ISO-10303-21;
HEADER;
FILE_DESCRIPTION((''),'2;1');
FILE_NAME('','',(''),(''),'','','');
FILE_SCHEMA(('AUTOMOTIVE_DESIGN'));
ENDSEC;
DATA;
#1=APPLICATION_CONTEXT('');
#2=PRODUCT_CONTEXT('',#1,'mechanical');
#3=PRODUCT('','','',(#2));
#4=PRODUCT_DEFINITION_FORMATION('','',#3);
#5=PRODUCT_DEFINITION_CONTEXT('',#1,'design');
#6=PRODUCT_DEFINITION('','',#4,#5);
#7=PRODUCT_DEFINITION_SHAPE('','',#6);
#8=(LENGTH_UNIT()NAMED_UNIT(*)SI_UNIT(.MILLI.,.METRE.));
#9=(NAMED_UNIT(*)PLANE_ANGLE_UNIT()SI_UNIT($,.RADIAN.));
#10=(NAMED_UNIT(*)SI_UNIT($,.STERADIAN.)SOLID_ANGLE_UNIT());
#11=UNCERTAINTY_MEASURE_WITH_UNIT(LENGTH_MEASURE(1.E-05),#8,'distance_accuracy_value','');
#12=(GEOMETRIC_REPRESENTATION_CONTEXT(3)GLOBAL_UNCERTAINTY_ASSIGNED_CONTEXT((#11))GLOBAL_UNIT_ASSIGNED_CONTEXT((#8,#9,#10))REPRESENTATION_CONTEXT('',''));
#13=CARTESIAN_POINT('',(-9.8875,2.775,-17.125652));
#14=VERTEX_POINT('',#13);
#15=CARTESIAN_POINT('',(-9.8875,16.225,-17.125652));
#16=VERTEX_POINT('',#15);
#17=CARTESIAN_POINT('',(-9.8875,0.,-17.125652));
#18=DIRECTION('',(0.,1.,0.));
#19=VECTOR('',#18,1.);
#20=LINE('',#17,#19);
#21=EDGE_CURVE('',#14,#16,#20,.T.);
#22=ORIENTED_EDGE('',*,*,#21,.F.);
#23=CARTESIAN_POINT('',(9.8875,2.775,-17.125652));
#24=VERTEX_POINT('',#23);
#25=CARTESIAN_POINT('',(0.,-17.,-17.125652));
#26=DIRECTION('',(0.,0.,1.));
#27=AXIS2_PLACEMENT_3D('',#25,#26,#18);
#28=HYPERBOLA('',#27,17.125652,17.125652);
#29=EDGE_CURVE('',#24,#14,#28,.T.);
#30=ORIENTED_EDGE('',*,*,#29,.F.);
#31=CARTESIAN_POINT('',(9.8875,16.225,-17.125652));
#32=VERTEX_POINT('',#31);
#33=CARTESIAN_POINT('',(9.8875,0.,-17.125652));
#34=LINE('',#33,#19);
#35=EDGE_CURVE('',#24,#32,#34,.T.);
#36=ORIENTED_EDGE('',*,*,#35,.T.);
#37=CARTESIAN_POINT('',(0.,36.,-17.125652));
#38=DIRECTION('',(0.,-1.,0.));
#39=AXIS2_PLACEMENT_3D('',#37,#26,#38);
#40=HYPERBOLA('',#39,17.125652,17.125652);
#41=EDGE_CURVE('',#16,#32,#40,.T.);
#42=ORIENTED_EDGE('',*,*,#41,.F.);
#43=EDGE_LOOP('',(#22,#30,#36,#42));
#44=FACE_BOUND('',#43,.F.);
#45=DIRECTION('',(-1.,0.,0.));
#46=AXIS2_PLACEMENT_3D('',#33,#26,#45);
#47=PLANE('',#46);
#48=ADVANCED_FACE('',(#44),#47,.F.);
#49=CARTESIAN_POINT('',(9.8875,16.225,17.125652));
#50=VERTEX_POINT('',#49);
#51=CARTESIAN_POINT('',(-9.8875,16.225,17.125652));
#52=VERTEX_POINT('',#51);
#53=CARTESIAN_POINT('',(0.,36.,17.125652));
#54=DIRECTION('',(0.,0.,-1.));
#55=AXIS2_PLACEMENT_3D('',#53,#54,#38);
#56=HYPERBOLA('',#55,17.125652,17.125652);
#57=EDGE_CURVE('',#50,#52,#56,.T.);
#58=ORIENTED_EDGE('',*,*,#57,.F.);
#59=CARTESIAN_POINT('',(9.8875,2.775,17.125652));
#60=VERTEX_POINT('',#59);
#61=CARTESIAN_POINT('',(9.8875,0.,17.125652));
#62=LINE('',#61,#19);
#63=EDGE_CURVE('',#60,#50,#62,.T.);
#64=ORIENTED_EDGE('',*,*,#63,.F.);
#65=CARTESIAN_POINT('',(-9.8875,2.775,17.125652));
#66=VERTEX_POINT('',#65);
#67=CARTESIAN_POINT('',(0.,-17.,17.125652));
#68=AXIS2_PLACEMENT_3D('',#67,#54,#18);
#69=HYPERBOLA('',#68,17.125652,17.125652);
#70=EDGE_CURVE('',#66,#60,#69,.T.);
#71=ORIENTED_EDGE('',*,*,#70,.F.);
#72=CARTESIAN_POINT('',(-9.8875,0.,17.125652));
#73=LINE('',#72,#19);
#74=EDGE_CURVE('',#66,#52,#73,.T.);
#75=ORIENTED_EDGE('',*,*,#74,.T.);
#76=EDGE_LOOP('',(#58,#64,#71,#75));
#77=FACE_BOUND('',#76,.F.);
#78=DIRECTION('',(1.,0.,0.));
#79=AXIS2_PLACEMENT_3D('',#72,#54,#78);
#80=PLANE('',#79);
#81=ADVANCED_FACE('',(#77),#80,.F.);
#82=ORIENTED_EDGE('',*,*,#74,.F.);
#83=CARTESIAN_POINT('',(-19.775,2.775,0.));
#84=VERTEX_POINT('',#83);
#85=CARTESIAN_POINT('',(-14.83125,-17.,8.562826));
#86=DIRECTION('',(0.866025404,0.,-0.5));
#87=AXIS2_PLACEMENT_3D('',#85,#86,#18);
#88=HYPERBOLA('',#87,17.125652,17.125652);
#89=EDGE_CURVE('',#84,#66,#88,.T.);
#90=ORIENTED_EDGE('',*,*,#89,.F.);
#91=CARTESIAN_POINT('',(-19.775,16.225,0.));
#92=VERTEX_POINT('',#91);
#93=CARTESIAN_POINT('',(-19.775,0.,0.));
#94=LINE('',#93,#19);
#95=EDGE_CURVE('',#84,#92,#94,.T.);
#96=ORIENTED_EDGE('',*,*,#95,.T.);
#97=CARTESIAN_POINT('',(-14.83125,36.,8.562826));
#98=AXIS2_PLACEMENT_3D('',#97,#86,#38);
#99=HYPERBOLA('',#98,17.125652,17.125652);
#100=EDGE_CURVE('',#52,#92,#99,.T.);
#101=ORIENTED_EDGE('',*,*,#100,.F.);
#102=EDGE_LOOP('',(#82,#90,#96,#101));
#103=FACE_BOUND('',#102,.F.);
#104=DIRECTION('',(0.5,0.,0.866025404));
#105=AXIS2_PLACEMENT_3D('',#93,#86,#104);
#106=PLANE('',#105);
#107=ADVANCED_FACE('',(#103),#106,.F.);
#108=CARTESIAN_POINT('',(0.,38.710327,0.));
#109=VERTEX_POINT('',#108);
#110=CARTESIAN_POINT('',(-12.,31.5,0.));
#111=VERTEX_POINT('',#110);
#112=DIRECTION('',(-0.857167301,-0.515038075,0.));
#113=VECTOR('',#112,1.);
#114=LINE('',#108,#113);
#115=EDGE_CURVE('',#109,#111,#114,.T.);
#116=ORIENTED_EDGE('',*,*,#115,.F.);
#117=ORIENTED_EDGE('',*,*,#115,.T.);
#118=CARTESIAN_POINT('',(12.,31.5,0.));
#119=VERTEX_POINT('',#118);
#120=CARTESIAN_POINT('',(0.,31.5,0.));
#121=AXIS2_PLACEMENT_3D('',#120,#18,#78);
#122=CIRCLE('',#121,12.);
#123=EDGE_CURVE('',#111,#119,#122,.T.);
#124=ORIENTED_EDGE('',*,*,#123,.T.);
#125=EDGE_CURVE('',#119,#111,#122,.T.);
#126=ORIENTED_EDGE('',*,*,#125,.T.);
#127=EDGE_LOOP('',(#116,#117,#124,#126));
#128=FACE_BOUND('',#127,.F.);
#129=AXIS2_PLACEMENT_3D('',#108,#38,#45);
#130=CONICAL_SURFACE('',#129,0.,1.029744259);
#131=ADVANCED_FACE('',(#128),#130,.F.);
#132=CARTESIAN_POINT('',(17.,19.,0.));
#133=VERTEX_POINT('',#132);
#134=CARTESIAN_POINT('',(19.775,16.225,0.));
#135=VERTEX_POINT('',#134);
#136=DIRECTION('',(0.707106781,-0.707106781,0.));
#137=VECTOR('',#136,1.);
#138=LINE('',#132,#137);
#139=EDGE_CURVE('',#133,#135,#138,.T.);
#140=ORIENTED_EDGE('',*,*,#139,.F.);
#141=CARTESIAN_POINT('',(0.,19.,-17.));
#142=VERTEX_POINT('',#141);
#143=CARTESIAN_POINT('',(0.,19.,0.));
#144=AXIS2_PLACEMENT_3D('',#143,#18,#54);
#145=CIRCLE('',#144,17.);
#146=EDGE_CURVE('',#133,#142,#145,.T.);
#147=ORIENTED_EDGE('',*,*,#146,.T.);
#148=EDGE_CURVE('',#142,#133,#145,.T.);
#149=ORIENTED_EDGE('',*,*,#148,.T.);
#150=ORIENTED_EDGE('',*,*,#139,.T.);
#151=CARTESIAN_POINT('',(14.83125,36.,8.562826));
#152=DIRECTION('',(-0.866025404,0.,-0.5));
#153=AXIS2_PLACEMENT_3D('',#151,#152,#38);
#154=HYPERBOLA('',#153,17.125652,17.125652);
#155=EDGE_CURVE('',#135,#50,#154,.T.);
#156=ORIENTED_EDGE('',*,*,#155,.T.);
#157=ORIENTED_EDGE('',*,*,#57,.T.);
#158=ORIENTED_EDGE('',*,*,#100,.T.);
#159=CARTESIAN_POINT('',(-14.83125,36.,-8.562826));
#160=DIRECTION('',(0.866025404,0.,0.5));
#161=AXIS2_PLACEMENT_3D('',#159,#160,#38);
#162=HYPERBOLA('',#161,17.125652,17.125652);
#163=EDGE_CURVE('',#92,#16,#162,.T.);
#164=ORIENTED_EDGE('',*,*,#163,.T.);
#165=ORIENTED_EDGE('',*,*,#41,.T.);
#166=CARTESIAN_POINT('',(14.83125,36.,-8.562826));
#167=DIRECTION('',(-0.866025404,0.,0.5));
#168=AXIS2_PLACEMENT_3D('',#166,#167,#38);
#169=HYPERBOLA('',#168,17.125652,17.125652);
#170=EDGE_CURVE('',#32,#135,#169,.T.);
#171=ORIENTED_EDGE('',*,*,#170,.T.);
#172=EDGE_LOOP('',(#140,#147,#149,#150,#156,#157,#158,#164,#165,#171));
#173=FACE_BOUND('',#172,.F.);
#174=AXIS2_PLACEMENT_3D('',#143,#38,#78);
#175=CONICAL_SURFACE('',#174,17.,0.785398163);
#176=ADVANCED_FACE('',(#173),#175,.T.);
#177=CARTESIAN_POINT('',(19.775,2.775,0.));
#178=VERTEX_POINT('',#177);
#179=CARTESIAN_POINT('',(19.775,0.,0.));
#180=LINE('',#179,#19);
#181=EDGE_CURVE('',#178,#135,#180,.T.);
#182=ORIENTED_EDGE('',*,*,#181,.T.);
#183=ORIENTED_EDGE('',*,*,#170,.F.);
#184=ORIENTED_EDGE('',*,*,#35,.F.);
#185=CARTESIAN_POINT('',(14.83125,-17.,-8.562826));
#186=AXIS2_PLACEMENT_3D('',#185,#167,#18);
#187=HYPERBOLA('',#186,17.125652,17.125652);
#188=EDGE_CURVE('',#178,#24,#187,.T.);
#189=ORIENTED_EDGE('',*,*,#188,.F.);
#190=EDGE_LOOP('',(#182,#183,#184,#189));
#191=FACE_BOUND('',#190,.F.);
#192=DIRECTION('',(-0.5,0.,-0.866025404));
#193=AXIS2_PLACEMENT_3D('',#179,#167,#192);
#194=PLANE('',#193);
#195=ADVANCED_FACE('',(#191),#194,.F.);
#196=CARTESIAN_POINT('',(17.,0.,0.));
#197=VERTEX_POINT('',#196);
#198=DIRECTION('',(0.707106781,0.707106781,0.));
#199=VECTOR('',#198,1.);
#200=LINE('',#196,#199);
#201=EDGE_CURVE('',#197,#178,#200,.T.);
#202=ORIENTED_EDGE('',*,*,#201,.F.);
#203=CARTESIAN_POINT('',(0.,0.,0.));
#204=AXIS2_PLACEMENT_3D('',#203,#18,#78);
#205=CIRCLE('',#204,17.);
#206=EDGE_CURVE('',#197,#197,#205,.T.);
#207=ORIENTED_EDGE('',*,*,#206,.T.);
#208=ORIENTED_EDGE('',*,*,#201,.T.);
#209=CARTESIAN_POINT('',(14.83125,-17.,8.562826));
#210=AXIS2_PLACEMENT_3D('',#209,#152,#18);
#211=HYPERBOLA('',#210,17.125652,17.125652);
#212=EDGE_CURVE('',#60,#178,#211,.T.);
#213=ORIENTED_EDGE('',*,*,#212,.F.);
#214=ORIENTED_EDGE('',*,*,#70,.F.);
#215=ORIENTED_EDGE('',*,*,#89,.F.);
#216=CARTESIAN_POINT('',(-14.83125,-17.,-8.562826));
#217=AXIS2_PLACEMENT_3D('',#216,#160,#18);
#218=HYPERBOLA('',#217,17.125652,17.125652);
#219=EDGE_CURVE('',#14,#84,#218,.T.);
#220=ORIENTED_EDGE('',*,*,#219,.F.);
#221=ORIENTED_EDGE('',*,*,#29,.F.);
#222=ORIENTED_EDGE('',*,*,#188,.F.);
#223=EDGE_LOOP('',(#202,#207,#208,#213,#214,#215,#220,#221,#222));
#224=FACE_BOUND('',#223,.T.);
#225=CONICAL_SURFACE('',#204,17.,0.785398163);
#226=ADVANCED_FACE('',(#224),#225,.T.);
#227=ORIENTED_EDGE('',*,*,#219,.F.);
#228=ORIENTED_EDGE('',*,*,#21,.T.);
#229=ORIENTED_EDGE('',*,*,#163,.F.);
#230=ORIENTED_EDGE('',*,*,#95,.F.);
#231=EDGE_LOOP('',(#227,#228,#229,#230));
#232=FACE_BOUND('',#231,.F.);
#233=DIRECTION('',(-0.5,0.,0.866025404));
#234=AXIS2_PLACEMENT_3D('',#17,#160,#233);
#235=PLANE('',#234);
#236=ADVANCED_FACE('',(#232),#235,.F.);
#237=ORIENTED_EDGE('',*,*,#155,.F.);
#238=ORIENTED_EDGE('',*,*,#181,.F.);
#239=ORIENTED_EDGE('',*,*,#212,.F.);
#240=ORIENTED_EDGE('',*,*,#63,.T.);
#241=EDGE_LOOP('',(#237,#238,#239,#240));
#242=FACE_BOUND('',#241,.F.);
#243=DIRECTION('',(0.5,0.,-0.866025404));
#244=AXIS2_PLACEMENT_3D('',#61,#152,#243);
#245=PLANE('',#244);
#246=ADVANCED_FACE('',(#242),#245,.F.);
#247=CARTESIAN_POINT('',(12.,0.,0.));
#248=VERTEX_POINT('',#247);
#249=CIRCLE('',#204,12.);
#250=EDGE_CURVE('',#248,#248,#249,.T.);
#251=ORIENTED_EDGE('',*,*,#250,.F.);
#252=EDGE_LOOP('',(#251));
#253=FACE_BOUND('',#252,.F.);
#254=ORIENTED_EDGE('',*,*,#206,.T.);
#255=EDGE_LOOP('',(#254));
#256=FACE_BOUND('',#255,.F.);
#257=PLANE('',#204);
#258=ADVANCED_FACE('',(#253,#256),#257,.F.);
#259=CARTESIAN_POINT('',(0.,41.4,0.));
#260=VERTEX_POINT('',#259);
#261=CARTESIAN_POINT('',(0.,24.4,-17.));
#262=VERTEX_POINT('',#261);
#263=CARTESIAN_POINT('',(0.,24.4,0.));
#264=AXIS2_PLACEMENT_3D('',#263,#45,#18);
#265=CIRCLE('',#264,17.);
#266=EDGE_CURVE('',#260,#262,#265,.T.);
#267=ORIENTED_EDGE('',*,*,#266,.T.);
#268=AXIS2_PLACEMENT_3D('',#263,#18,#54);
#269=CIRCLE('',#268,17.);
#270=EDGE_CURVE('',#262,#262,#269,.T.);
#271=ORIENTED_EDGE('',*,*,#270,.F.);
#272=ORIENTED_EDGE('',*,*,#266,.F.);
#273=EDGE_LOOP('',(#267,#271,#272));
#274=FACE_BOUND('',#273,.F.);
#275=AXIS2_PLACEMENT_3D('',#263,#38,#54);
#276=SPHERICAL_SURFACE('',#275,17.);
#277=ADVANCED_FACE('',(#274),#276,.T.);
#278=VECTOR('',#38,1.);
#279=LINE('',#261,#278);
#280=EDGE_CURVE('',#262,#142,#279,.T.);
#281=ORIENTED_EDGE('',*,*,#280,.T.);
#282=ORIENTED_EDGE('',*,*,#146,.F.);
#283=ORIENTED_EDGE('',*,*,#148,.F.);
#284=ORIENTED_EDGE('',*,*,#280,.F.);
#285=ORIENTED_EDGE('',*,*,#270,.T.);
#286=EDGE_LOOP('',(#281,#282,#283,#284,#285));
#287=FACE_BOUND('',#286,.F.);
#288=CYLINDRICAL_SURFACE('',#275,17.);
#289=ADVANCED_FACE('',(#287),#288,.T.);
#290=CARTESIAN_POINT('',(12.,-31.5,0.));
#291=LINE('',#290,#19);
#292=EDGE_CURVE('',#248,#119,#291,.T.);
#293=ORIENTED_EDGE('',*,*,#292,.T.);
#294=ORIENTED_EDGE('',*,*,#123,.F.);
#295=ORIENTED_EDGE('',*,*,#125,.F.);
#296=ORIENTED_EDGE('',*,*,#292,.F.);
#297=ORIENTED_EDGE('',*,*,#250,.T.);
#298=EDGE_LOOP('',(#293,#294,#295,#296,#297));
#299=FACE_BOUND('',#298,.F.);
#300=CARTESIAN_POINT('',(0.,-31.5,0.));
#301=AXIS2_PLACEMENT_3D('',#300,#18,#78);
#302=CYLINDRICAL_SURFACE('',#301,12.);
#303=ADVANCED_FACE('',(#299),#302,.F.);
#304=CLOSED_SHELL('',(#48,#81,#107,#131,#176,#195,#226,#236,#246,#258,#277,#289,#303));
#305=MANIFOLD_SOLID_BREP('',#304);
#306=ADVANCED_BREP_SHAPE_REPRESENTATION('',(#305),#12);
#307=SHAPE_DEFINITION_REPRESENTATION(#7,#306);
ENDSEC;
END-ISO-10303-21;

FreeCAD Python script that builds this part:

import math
import FreeCAD as App
import Part
import Sketcher
from FreeCAD import Vector
Q = App.Units.Quantity


def add_polygon(sketch, points):
    """Adds a closed chain of lines whose ends are joined by coincident constraints."""
    first, n = sketch.GeometryCount, len(points)
    for a, b in zip(points, points[1:] + points[:1]):
        sketch.addGeometry(Part.LineSegment(App.Vector(*a, 0), App.Vector(*b, 0)), False)
    for i in range(n):
        sketch.addConstraint(Sketcher.Constraint("Coincident", first + i, 2, first + (i + 1) % n, 1))

doc = App.newDocument("Part")
body = doc.addObject("PartDesign::Body", "Body")

# Sketch on XZ plane
sketch1 = body.newObject("Sketcher::SketchObject", "Sketch")
sketch1.AttachmentSupport = (doc.getObject("XZ_Plane"), [""])
sketch1.MapMode = "FlatFace"
add_polygon(sketch1, [(20, 0), (10, -17), (-10, -17), (-20, 0), (-10, 17), (10, 17)])  # lines 0-5
sketch1.addConstraint(Sketcher.Constraint("Horizontal", 1))
sketch1.addConstraint(Sketcher.Constraint("Horizontal", 4))
sketch1.addConstraint(Sketcher.Constraint("Symmetric", 0, 2, 3, 2, -1, 1))
sketch1.addConstraint(Sketcher.Constraint("Symmetric", 2, 2, 5, 2, -1, 1))
sketch1.addConstraint(Sketcher.Constraint("PointOnObject", 2, 2, -1))
sketch1.addConstraint(Sketcher.Constraint("Parallel", 2, 5))
sketch1.addConstraint(Sketcher.Constraint("Vertical", 1, 2, 3, 2))
sketch1.addConstraint(Sketcher.Constraint("Angle", 0, Q("-120 deg")))
sketch1.addConstraint(Sketcher.Constraint("DistanceX", 1, 2, 1, 1, Q("19.775 mm")))
sketch1.addConstraint(Sketcher.Constraint("DistanceX", 2, 2, 5, 2, Q("39.55 mm")))
pad1 = body.newObject("PartDesign::Pad", "Pad")
pad1.Profile = sketch1
pad1.Length = 19
pad1.Reversed = True

# Sketch on YZ plane
sketch2 = body.newObject("Sketcher::SketchObject", "Sketch001")
sketch2.AttachmentSupport = (doc.getObject("YZ_Plane"), [""])
sketch2.MapMode = "FlatFace"
sketch2.addGeometry(Part.LineSegment(Vector(24, -17, 0), Vector(19, -17, 0)), False)
sketch2.addGeometry(Part.LineSegment(Vector(19, -17, 0), Vector(19, 0, 0)), False)
sketch2.addGeometry(Part.LineSegment(Vector(19, 0, 0), Vector(41, 0, 0)), False)
sketch2.addGeometry(Part.ArcOfCircle(Part.Circle(Vector(24, 0, 0), Vector(0, 0, 1), 17), math.radians(-90), math.radians(0)), False)
sketch2.addConstraint(Sketcher.Constraint("Coincident", 0, 2, 1, 1))
sketch2.addConstraint(Sketcher.Constraint("Coincident", 1, 2, 2, 1))
sketch2.addConstraint(Sketcher.Constraint("Coincident", 2, 2, 3, 2))
sketch2.addConstraint(Sketcher.Constraint("Tangent", 3, 1, 0, 1))
sketch2.addConstraint(Sketcher.Constraint("Horizontal", 0))
sketch2.addConstraint(Sketcher.Constraint("Vertical", 1))
sketch2.addConstraint(Sketcher.Constraint("Horizontal", 2))
sketch2.addConstraint(Sketcher.Constraint("PointOnObject", 3, 3, -1))
sketch2.addConstraint(Sketcher.Constraint("PointOnObject", 1, 2, -1))
sketch2.addConstraint(Sketcher.Constraint("Radius", 3, Q("17 mm")))
sketch2.addConstraint(Sketcher.Constraint("DistanceX", 0, 2, 0, 1, Q("5.4 mm")))
sketch2.addConstraint(Sketcher.Constraint("DistanceX", -1, 1, 0, 2, Q("19 mm")))
revolution = body.newObject("PartDesign::Revolution", "Revolution")
revolution.Profile = sketch2
revolution.ReferenceAxis = (sketch2, ["H_Axis"])
revolution.Angle = 360

# Sketch on XZ plane
sketch3 = body.newObject("Sketcher::SketchObject", "Sketch002")
sketch3.AttachmentSupport = (doc.getObject("XZ_Plane"), [""])
sketch3.MapMode = "FlatFace"
sketch3.addGeometry(Part.Circle(Vector(0, 0, 0), Vector(0, 0, 1), 12), False)
sketch3.addConstraint(Sketcher.Constraint("Coincident", 0, 3, -1, 1))
sketch3.addConstraint(Sketcher.Constraint("Diameter", 0, Q("24 mm")))
doc.recompute()
hole = body.newObject("PartDesign::Hole", "Hole")
hole.Profile = sketch3
hole.ThreadType = "None"
hole.Diameter = 24
hole.DepthType = "Dimension"
hole.Depth = 31.5
hole.DrillPoint = "Angled"
hole.DrillPointAngle = 118

# Sketch on XY plane
sketch4 = body.newObject("Sketcher::SketchObject", "Sketch003")
sketch4.AttachmentSupport = (doc.getObject("XY_Plane"), [""])
sketch4.MapMode = "FlatFace"
add_polygon(sketch4, [(19.8, 19), (17, 19), (19.8, 16.2)])  # lines 0-2
add_polygon(sketch4, [(19.8, 0), (19.8, 2.8), (17, 0)])  # lines 3-5
sketch4.addConstraint(Sketcher.Constraint("Horizontal", 0))
sketch4.addConstraint(Sketcher.Constraint("Vertical", 2))
sketch4.addConstraint(Sketcher.Constraint("Vertical", 3))
sketch4.addConstraint(Sketcher.Constraint("Horizontal", 5))
sketch4.addConstraint(Sketcher.Constraint("PointOnObject", 4, 2, -1))
sketch4.addConstraint(Sketcher.Constraint("Perpendicular", 1, 4))
sketch4.addConstraint(Sketcher.Constraint("Vertical", 2, 2, 3, 2))
sketch4.addConstraint(Sketcher.Constraint("Vertical", 0, 2, 4, 2))
sketch4.addConstraint(Sketcher.Constraint("Equal", 5, 2))
sketch4.addConstraint(Sketcher.Constraint("DistanceX", -1, 1, 0, 2, Q("17 mm")))
sketch4.addConstraint(Sketcher.Constraint("DistanceY", -1, 1, 0, 2, Q("19 mm")))
sketch4.addConstraint(Sketcher.Constraint("DistanceX", 0, 2, 0, 1, Q("2.775 mm")))
groove = body.newObject("PartDesign::Groove", "Groove")
groove.Profile = sketch4
groove.ReferenceAxis = (sketch4, ["V_Axis"])
groove.Angle = 360

doc.recompute()
